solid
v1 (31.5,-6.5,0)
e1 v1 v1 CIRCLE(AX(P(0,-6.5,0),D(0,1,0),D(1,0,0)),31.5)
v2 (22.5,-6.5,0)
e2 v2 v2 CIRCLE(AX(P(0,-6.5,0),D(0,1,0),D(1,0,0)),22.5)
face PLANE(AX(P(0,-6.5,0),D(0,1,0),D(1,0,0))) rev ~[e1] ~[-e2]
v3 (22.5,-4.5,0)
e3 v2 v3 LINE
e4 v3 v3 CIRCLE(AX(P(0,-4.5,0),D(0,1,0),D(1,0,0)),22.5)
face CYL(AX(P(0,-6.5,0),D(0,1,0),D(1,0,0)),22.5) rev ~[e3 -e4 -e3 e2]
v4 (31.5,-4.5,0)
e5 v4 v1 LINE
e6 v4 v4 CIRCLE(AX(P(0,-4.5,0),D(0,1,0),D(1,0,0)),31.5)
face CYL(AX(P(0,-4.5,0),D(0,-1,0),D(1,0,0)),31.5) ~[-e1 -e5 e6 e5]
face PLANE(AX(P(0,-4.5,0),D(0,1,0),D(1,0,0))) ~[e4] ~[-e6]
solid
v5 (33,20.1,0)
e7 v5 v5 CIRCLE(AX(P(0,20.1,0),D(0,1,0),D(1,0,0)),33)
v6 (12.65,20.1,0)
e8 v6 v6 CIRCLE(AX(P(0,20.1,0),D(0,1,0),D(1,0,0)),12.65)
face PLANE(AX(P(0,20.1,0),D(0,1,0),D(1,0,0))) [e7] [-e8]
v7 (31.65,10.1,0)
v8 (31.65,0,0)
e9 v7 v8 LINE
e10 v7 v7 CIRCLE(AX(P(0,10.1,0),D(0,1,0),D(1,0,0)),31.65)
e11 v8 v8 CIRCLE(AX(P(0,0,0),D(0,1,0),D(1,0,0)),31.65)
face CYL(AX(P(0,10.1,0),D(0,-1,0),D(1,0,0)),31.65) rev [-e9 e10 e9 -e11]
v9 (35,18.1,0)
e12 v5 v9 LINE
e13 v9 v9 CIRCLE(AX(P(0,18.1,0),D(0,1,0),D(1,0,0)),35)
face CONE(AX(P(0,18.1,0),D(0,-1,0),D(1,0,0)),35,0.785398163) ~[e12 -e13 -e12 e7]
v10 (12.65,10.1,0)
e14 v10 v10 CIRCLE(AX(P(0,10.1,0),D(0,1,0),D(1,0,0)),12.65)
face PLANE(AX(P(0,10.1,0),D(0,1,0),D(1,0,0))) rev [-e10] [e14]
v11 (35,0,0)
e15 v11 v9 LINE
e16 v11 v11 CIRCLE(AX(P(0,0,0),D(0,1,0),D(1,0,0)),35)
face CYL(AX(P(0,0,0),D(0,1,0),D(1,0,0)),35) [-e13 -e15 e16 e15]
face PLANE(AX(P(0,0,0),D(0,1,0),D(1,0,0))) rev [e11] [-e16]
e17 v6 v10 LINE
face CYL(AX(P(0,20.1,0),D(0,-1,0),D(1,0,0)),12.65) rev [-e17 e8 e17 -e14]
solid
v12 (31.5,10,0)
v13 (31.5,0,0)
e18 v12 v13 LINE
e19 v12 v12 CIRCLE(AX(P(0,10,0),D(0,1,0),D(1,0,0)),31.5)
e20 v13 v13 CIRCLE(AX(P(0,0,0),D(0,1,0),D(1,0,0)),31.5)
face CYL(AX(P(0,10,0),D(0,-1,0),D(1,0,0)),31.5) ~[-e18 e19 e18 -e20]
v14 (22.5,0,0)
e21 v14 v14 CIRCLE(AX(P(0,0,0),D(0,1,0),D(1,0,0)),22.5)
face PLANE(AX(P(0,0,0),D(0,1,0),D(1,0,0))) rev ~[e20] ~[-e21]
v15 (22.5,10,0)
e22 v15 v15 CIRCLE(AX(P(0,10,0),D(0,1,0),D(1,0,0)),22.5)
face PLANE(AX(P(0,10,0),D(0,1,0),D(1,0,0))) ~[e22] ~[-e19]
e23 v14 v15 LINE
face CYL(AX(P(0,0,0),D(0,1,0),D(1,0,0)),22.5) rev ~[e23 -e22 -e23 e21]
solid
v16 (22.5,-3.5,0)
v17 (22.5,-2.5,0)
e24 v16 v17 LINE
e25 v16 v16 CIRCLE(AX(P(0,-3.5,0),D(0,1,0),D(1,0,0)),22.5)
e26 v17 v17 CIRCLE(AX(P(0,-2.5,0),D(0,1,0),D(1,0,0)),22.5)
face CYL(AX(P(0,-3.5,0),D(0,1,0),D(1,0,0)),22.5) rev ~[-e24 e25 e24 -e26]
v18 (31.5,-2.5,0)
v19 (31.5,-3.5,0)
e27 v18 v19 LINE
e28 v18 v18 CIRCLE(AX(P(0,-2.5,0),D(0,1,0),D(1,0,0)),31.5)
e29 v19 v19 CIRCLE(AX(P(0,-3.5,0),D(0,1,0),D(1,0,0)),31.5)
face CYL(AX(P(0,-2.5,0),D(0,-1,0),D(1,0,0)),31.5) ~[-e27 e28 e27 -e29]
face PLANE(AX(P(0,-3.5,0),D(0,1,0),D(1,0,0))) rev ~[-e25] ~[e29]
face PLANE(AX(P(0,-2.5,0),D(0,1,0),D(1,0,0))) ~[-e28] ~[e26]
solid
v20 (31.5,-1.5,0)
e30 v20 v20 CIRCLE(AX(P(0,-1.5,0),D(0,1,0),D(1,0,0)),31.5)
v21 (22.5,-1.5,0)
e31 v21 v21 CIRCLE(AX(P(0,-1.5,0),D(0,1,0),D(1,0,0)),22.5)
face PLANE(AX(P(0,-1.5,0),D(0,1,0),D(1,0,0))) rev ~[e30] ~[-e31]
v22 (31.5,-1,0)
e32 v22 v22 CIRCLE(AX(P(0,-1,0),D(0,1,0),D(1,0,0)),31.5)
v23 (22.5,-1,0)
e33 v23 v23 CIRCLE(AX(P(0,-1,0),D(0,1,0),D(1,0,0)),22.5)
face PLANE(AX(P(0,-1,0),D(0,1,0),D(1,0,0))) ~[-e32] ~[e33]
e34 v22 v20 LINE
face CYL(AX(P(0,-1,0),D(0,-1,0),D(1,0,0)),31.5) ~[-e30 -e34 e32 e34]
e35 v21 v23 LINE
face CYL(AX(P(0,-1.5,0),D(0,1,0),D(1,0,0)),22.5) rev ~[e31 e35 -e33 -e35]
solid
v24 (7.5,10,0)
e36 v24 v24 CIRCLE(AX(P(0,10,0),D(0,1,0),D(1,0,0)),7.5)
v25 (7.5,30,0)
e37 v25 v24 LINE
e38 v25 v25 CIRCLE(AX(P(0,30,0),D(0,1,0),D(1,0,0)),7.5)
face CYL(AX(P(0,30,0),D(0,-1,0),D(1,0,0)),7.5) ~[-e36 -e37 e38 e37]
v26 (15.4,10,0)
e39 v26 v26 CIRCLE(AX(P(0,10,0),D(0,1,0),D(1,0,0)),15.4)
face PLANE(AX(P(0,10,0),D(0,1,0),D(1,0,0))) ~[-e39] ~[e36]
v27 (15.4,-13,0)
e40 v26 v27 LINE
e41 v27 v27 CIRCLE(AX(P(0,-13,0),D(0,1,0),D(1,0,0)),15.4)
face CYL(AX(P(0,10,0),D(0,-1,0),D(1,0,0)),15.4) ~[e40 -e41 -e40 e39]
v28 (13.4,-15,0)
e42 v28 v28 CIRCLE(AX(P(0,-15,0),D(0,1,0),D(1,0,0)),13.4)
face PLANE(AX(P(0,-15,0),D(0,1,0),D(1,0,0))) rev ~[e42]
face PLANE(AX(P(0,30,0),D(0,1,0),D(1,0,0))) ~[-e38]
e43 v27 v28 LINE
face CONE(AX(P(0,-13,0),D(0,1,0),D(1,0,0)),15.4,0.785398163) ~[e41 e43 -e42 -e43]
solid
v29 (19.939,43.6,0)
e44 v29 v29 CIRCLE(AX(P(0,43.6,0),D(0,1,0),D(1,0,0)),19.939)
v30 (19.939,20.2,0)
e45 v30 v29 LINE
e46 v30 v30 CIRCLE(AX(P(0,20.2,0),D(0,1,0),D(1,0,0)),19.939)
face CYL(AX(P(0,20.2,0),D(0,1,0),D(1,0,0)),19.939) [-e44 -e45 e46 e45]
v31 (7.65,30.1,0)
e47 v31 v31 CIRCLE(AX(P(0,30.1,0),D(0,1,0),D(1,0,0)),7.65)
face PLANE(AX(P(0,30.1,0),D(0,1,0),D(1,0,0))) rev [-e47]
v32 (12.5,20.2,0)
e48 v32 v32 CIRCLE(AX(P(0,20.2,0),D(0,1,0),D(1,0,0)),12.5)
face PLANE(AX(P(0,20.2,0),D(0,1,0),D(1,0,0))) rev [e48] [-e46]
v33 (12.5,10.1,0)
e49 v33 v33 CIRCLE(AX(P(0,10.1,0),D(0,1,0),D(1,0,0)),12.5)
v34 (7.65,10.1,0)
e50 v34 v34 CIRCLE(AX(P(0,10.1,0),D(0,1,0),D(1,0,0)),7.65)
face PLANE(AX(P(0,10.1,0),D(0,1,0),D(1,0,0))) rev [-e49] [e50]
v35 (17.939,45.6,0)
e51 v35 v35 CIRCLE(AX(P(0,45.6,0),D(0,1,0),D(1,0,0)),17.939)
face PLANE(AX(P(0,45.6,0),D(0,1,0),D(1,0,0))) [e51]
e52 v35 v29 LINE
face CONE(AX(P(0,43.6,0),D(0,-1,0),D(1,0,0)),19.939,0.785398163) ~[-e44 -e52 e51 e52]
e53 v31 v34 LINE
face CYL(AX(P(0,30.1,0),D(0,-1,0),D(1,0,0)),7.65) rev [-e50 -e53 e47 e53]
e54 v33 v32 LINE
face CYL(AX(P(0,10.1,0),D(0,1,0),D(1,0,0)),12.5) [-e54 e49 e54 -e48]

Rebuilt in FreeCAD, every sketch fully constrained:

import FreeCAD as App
import Part
import Sketcher
from FreeCAD import Vector


def edges_at(feature, points):
    """Names of the edges that pass closest to the given points."""
    edges = feature.Shape.Edges
    near = lambda p: min(range(len(edges)), key=lambda i: edges[i].distToShape(Part.Vertex(*p))[0])
    return sorted({f"Edge{near(p) + 1}" for p in points})

doc = App.newDocument("Part")
params = doc.addObject("Spreadsheet::Sheet", "Params")
for row, (alias, value) in enumerate([
    ("sketch1_height", "10 mm"),
    ("sketch1_height2", "20 mm"),
    ("sketch1_height3", "1 mm"),
    ("sketch1_height4", "2 mm"),
    ("sketch1_width", "7.5 mm"),
    ("revolution_angle", "360 deg"),
    ("chamfer_size", "2 mm"),
], start=1):
    params.set(f"A{row}", alias)
    params.set(f"B{row}", "=" + value)
    params.setAlias(f"B{row}", alias)

body = doc.addObject("PartDesign::Body", "Body")
body.AllowCompound = True

# Sketch on XY plane
sketch1 = doc.addObject("Sketcher::SketchObject", "Sketch")
body.addObject(sketch1)
sketch1.AttachmentSupport = (doc.XY_Plane, [""])
sketch1.MapMode = "FlatFace"
sketch1.addGeometry([
    Part.LineSegment(Vector(31.6, 10.1, 0), Vector(31.6, 0, 0)),  # 0
    Part.LineSegment(Vector(31.6, 0, 0), Vector(35, 0, 0)),  # 1
    Part.LineSegment(Vector(35, 0, 0), Vector(35, 20.1, 0)),  # 2
    Part.LineSegment(Vector(35, 20.1, 0), Vector(12.7, 20.1, 0)),  # 3
    Part.LineSegment(Vector(12.7, 20.1, 0), Vector(12.7, 10.1, 0)),  # 4
    Part.LineSegment(Vector(12.7, 10.1, 0), Vector(31.6, 10.1, 0)),  # 5
    Part.LineSegment(Vector(31.5, 10, 0), Vector(22.5, 10, 0)),  # 6
    Part.LineSegment(Vector(22.5, 10, 0), Vector(22.5, 0, 0)),  # 7
    Part.LineSegment(Vector(22.5, 0, 0), Vector(31.5, 0, 0)),  # 8
    Part.LineSegment(Vector(31.5, 0, 0), Vector(31.5, 10, 0)),  # 9
    Part.LineSegment(Vector(7.7, 10.1, 0), Vector(12.5, 10.1, 0)),  # 10
    Part.LineSegment(Vector(12.5, 10.1, 0), Vector(12.5, 20.2, 0)),  # 11
    Part.LineSegment(Vector(12.5, 20.2, 0), Vector(19.9, 20.2, 0)),  # 12
    Part.LineSegment(Vector(19.9, 20.2, 0), Vector(19.9, 45.6, 0)),  # 13
    Part.LineSegment(Vector(19.9, 45.6, 0), Vector(0, 45.6, 0)),  # 14
    Part.LineSegment(Vector(0, 45.6, 0), Vector(0, 30.1, 0)),  # 15
    Part.LineSegment(Vector(0, 30.1, 0), Vector(7.7, 30.1, 0)),  # 16
    Part.LineSegment(Vector(7.7, 30.1, 0), Vector(7.7, 10.1, 0)),  # 17
    Part.LineSegment(Vector(7.5, 30, 0), Vector(0, 30, 0)),  # 18
    Part.LineSegment(Vector(0, 30, 0), Vector(0, -15, 0)),  # 19
    Part.LineSegment(Vector(0, -15, 0), Vector(15.4, -15, 0)),  # 20
    Part.LineSegment(Vector(15.4, -15, 0), Vector(15.4, 10, 0)),  # 21
    Part.LineSegment(Vector(15.4, 10, 0), Vector(7.5, 10, 0)),  # 22
    Part.LineSegment(Vector(7.5, 10, 0), Vector(7.5, 30, 0)),  # 23
    Part.LineSegment(Vector(31.5, -2.5, 0), Vector(22.5, -2.5, 0)),  # 24
    Part.LineSegment(Vector(22.5, -2.5, 0), Vector(22.5, -3.5, 0)),  # 25
    Part.LineSegment(Vector(22.5, -3.5, 0), Vector(31.5, -3.5, 0)),  # 26
    Part.LineSegment(Vector(31.5, -3.5, 0), Vector(31.5, -2.5, 0)),  # 27
    Part.LineSegment(Vector(31.5, -4.5, 0), Vector(22.5, -4.5, 0)),  # 28
    Part.LineSegment(Vector(22.5, -4.5, 0), Vector(22.5, -6.5, 0)),  # 29
    Part.LineSegment(Vector(22.5, -6.5, 0), Vector(31.5, -6.5, 0)),  # 30
    Part.LineSegment(Vector(31.5, -6.5, 0), Vector(31.5, -4.5, 0)),  # 31
    Part.LineSegment(Vector(31.5, -1, 0), Vector(22.5, -1, 0)),  # 32
    Part.LineSegment(Vector(22.5, -1, 0), Vector(22.5, -1.5, 0)),  # 33
    Part.LineSegment(Vector(22.5, -1.5, 0), Vector(31.5, -1.5, 0)),  # 34
    Part.LineSegment(Vector(31.5, -1.5, 0), Vector(31.5, -1, 0)),  # 35
], False)
sketch1.addConstraint([
    Sketcher.Constraint("Coincident", 0, 2, 1, 1),
    Sketcher.Constraint("Coincident", 1, 2, 2, 1),
    Sketcher.Constraint("Coincident", 2, 2, 3, 1),
    Sketcher.Constraint("Coincident", 3, 2, 4, 1),
    Sketcher.Constraint("Coincident", 4, 2, 5, 1),
    Sketcher.Constraint("Coincident", 5, 2, 0, 1),
    Sketcher.Constraint("Coincident", 6, 2, 7, 1),
    Sketcher.Constraint("Coincident", 7, 2, 8, 1),
    Sketcher.Constraint("Coincident", 8, 2, 9, 1),
    Sketcher.Constraint("Coincident", 9, 2, 6, 1),
    Sketcher.Constraint("Coincident", 10, 2, 11, 1),
    Sketcher.Constraint("Coincident", 11, 2, 12, 1),
    Sketcher.Constraint("Coincident", 12, 2, 13, 1),
    Sketcher.Constraint("Coincident", 13, 2, 14, 1),
    Sketcher.Constraint("Coincident", 14, 2, 15, 1),
    Sketcher.Constraint("Coincident", 15, 2, 16, 1),
    Sketcher.Constraint("Coincident", 16, 2, 17, 1),
    Sketcher.Constraint("Coincident", 17, 2, 10, 1),
    Sketcher.Constraint("Coincident", 18, 2, 19, 1),
    Sketcher.Constraint("Coincident", 19, 2, 20, 1),
    Sketcher.Constraint("Coincident", 20, 2, 21, 1),
    Sketcher.Constraint("Coincident", 21, 2, 22, 1),
    Sketcher.Constraint("Coincident", 22, 2, 23, 1),
    Sketcher.Constraint("Coincident", 23, 2, 18, 1),
    Sketcher.Constraint("Coincident", 24, 2, 25, 1),
    Sketcher.Constraint("Coincident", 25, 2, 26, 1),
    Sketcher.Constraint("Coincident", 26, 2, 27, 1),
    Sketcher.Constraint("Coincident", 27, 2, 24, 1),
    Sketcher.Constraint("Coincident", 28, 2, 29, 1),
    Sketcher.Constraint("Coincident", 29, 2, 30, 1),
    Sketcher.Constraint("Coincident", 30, 2, 31, 1),
    Sketcher.Constraint("Coincident", 31, 2, 28, 1),
    Sketcher.Constraint("Coincident", 32, 2, 33, 1),
    Sketcher.Constraint("Coincident", 33, 2, 34, 1),
    Sketcher.Constraint("Coincident", 34, 2, 35, 1),
    Sketcher.Constraint("Coincident", 35, 2, 32, 1),
    Sketcher.Constraint("Vertical", 0),
    Sketcher.Constraint("Horizontal", 1),
    Sketcher.Constraint("Vertical", 2),
    Sketcher.Constraint("Horizontal", 3),
    Sketcher.Constraint("Vertical", 4),
    Sketcher.Constraint("Horizontal", 5),
    Sketcher.Constraint("Horizontal", 6),
    Sketcher.Constraint("Vertical", 7),
    Sketcher.Constraint("Horizontal", 8),
    Sketcher.Constraint("Vertical", 9),
    Sketcher.Constraint("Horizontal", 10),
    Sketcher.Constraint("Vertical", 11),
    Sketcher.Constraint("Horizontal", 12),
    Sketcher.Constraint("Vertical", 13),
    Sketcher.Constraint("Horizontal", 14),
    Sketcher.Constraint("Vertical", 15),
    Sketcher.Constraint("Horizontal", 16),
    Sketcher.Constraint("Vertical", 17),
    Sketcher.Constraint("Horizontal", 18),
    Sketcher.Constraint("Vertical", 19),
    Sketcher.Constraint("Horizontal", 20),
    Sketcher.Constraint("Vertical", 21),
    Sketcher.Constraint("Horizontal", 22),
    Sketcher.Constraint("Vertical", 23),
    Sketcher.Constraint("Horizontal", 24),
    Sketcher.Constraint("Vertical", 25),
    Sketcher.Constraint("Horizontal", 26),
    Sketcher.Constraint("Vertical", 27),
    Sketcher.Constraint("Horizontal", 28),
    Sketcher.Constraint("Vertical", 29),
    Sketcher.Constraint("Horizontal", 30),
    Sketcher.Constraint("Vertical", 31),
    Sketcher.Constraint("Horizontal", 32),
    Sketcher.Constraint("Vertical", 33),
    Sketcher.Constraint("Horizontal", 34),
    Sketcher.Constraint("Vertical", 35),
    Sketcher.Constraint("PointOnObject", 0, 2, -1),
    Sketcher.Constraint("PointOnObject", 7, 2, -1),
    Sketcher.Constraint("PointOnObject", 14, 2, -2),
    Sketcher.Constraint("PointOnObject", 18, 2, -2),
    Sketcher.Constraint("Horizontal", 5, 2, 10, 2),
    Sketcher.Constraint("Horizontal", 9, 2, 21, 2),
    Sketcher.Constraint("Vertical", 7, 2, 24, 2),
    Sketcher.Constraint("Vertical", 9, 2, 26, 2),
    Sketcher.Constraint("Vertical", 25, 2, 28, 2),
    Sketcher.Constraint("Vertical", 27, 2, 30, 2),
    Sketcher.Constraint("Vertical", 29, 2, 32, 2),
    Sketcher.Constraint("Vertical", 31, 2, 34, 2),
    Sketcher.Constraint("Equal", 4, 7),
    Sketcher.Constraint("Equal", 0, 11),
    Sketcher.Constraint("Equal", 17, 23),
    Sketcher.Constraint("DistanceY", 4, 2, 4, 1, 10.0),
    Sketcher.Constraint("DistanceY", 17, 2, 17, 1, 20.0),
    Sketcher.Constraint("DistanceY", 25, 2, 25, 1, 1.0),
    Sketcher.Constraint("DistanceY", 29, 2, 29, 1, 2.0),
    Sketcher.Constraint("DistanceX", 18, 2, 18, 1, 7.5),
    Sketcher.Constraint("DistanceX", 20, 1, 20, 2, 15.4),
    Sketcher.Constraint("DistanceY", 13, 1, 13, 2, 25.4),
    Sketcher.Constraint("DistanceY", 33, 2, 33, 1, 0.5),
    Sketcher.Constraint("DistanceX", -1, 1, 1, 2, 35.0),
    Sketcher.Constraint("DistanceY", 19, 2, -1, 1, 15.0),
    Sketcher.Constraint("DistanceY", 32, 2, -1, 1, 1.0),
    Sketcher.Constraint("DistanceX", 10, 2, 6, 2, 10.0),
    Sketcher.Constraint("DistanceY", 28, 2, 25, 2, 1.0),
    Sketcher.Constraint("DistanceY", 24, 2, 33, 2, 1.0),
    Sketcher.Constraint("DistanceX", -1, 1, 6, 2, 22.5),
    Sketcher.Constraint("DistanceX", -1, 1, 8, 2, 31.5),
    Sketcher.Constraint("DistanceY", 6, 2, 5, 2, 0.1),
    Sketcher.Constraint("DistanceX", 5, 1, 5, 2, 19.0),
    Sketcher.Constraint("DistanceX", 14, 2, 14, 1, 19.939),
    Sketcher.Constraint("DistanceX", 8, 2, 0, 2, 0.15),
    Sketcher.Constraint("DistanceX", 22, 2, 17, 2, 0.15),
])
sketch1.setExpression("Constraints[87]", "Params.sketch1_height")
sketch1.setExpression("Constraints[88]", "Params.sketch1_height2")
sketch1.setExpression("Constraints[89]", "Params.sketch1_height3")
sketch1.setExpression("Constraints[90]", "Params.sketch1_height4")
sketch1.setExpression("Constraints[91]", "Params.sketch1_width")
revolution = doc.addObject("PartDesign::Revolution", "Revolution")
body.addObject(revolution)
revolution.Profile = sketch1
revolution.ReferenceAxis = (sketch1, ["V_Axis"])
revolution.setExpression("Angle", "Params.revolution_angle")
doc.recompute()

chamfer = doc.addObject("PartDesign::Chamfer", "Chamfer")
body.addObject(chamfer)
chamfer.Base = (revolution, edges_at(revolution, [(-19.939, 45.6, 0), (-35, 20.1, 0), (-15.4, -15, 0)]))
chamfer.setExpression("Size", "Params.chamfer_size")

doc.recompute()
